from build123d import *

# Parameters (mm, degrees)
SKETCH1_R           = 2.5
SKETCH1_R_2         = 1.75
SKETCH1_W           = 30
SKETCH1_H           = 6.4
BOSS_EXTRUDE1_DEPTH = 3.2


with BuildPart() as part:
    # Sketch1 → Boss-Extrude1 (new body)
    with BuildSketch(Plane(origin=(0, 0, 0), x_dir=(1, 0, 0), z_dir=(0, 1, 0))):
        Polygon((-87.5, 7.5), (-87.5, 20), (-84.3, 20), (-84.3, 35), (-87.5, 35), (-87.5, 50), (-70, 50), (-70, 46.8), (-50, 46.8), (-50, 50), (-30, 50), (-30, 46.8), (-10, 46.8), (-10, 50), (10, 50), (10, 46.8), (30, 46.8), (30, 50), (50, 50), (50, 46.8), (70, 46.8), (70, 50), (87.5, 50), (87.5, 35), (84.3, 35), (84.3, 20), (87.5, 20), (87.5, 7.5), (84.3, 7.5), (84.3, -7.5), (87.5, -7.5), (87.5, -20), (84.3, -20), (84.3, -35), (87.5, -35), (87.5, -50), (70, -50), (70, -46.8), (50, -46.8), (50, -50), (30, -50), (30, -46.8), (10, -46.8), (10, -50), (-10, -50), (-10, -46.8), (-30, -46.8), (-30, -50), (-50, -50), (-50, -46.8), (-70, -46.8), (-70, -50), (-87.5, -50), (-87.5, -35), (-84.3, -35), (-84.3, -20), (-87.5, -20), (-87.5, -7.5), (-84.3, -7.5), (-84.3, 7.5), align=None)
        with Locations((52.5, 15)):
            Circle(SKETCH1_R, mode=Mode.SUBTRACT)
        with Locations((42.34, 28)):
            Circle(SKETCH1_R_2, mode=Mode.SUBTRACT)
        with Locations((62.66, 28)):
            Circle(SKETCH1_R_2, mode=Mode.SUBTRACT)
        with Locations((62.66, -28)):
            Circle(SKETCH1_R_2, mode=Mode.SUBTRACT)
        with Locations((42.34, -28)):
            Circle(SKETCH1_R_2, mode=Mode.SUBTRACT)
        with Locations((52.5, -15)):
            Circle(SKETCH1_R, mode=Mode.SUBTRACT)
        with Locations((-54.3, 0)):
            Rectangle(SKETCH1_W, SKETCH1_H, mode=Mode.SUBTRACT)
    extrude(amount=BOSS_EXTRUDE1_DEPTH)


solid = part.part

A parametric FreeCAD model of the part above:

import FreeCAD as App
import Part
import Sketcher
from FreeCAD import Vector
Q = App.Units.Quantity


def add_polygon(sketch, points):
    """Adds a closed chain of lines whose ends are joined by coincident constraints."""
    first, n = sketch.GeometryCount, len(points)
    for a, b in zip(points, points[1:] + points[:1]):
        sketch.addGeometry(Part.LineSegment(App.Vector(*a, 0), App.Vector(*b, 0)), False)
    for i in range(n):
        sketch.addConstraint(Sketcher.Constraint("Coincident", first + i, 2, first + (i + 1) % n, 1))

doc = App.newDocument("Part")
body = doc.addObject("PartDesign::Body", "Body")

# Sketch on XZ plane
sketch1 = doc.addObject("Sketcher::SketchObject", "Sketch")
body.addObject(sketch1)
sketch1.AttachmentSupport = (doc.XZ_Plane, [""])
sketch1.MapMode = "FlatFace"
add_polygon(sketch1, [(-87.5, -20), (-87.5, -7.5), (-84.3, -7.5), (-84.3, 7.5), (-87.5, 7.5), (-87.5, 20), (-84.3, 20), (-84.3, 35), (-87.5, 35), (-87.5, 50), (-70, 50), (-70, 46.8), (-50, 46.8), (-50, 50), (-30, 50), (-30, 46.8), (-10, 46.8), (-10, 50), (10, 50), (10, 46.8), (30, 46.8), (30, 50), (50, 50), (50, 46.8), (70, 46.8), (70, 50), (87.5, 50), (87.5, 35), (84.3, 35), (84.3, 20), (87.5, 20), (87.5, 7.5), (84.3, 7.5), (84.3, -7.5), (87.5, -7.5), (87.5, -20), (84.3, -20), (84.3, -35), (87.5, -35), (87.5, -50), (70, -50), (70, -46.8), (50, -46.8), (50, -50), (30, -50), (30, -46.8), (10, -46.8), (10, -50), (-10, -50), (-10, -46.8), (-30, -46.8), (-30, -50), (-50, -50), (-50, -46.8), (-70, -46.8), (-70, -50), (-87.5, -50), (-87.5, -35), (-84.3, -35), (-84.3, -20)])  # lines 0-59
sketch1.addGeometry(Part.Circle(Vector(62.7, 28, 0), Vector(0, 0, 1), 1.8), False)  # 60
sketch1.addGeometry(Part.Circle(Vector(42.3, 28, 0), Vector(0, 0, 1), 1.8), False)  # 61
sketch1.addGeometry(Part.Circle(Vector(52.5, 15, 0), Vector(0, 0, 1), 2.5), False)  # 62
sketch1.addGeometry(Part.Circle(Vector(52.5, -15, 0), Vector(0, 0, 1), 2.5), False)  # 63
sketch1.addGeometry(Part.Circle(Vector(62.7, -28, 0), Vector(0, 0, 1), 1.8), False)  # 64
sketch1.addGeometry(Part.Circle(Vector(42.3, -28, 0), Vector(0, 0, 1), 1.8), False)  # 65
add_polygon(sketch1, [(-69.3, 3.2), (-69.3, -3.2), (-39.3, -3.2), (-39.3, 3.2)])  # lines 66-69
sketch1.addConstraint(Sketcher.Constraint("Vertical", 0))
sketch1.addConstraint(Sketcher.Constraint("Horizontal", 1))
sketch1.addConstraint(Sketcher.Constraint("Vertical", 2))
sketch1.addConstraint(Sketcher.Constraint("Horizontal", 3))
sketch1.addConstraint(Sketcher.Constraint("Vertical", 4))
sketch1.addConstraint(Sketcher.Constraint("Horizontal", 5))
sketch1.addConstraint(Sketcher.Constraint("Vertical", 6))
sketch1.addConstraint(Sketcher.Constraint("Horizontal", 7))
sketch1.addConstraint(Sketcher.Constraint("Vertical", 8))
sketch1.addConstraint(Sketcher.Constraint("Horizontal", 9))
sketch1.addConstraint(Sketcher.Constraint("Vertical", 10))
sketch1.addConstraint(Sketcher.Constraint("Horizontal", 11))
sketch1.addConstraint(Sketcher.Constraint("Vertical", 12))
sketch1.addConstraint(Sketcher.Constraint("Horizontal", 13))
sketch1.addConstraint(Sketcher.Constraint("Vertical", 14))
sketch1.addConstraint(Sketcher.Constraint("Horizontal", 15))
sketch1.addConstraint(Sketcher.Constraint("Vertical", 16))
sketch1.addConstraint(Sketcher.Constraint("Horizontal", 17))
sketch1.addConstraint(Sketcher.Constraint("Vertical", 18))
sketch1.addConstraint(Sketcher.Constraint("Horizontal", 19))
sketch1.addConstraint(Sketcher.Constraint("Vertical", 20))
sketch1.addConstraint(Sketcher.Constraint("Horizontal", 21))
sketch1.addConstraint(Sketcher.Constraint("Vertical", 22))
sketch1.addConstraint(Sketcher.Constraint("Horizontal", 23))
sketch1.addConstraint(Sketcher.Constraint("Vertical", 24))
sketch1.addConstraint(Sketcher.Constraint("Horizontal", 25))
sketch1.addConstraint(Sketcher.Constraint("Vertical", 26))
sketch1.addConstraint(Sketcher.Constraint("Horizontal", 27))
sketch1.addConstraint(Sketcher.Constraint("Vertical", 28))
sketch1.addConstraint(Sketcher.Constraint("Horizontal", 29))
sketch1.addConstraint(Sketcher.Constraint("Vertical", 30))
sketch1.addConstraint(Sketcher.Constraint("Horizontal", 31))
sketch1.addConstraint(Sketcher.Constraint("Vertical", 32))
sketch1.addConstraint(Sketcher.Constraint("Horizontal", 33))
sketch1.addConstraint(Sketcher.Constraint("Vertical", 34))
sketch1.addConstraint(Sketcher.Constraint("Horizontal", 35))
sketch1.addConstraint(Sketcher.Constraint("Vertical", 36))
sketch1.addConstraint(Sketcher.Constraint("Horizontal", 37))
sketch1.addConstraint(Sketcher.Constraint("Vertical", 38))
sketch1.addConstraint(Sketcher.Constraint("Horizontal", 39))
sketch1.addConstraint(Sketcher.Constraint("Vertical", 40))
sketch1.addConstraint(Sketcher.Constraint("Horizontal", 41))
sketch1.addConstraint(Sketcher.Constraint("Vertical", 42))
sketch1.addConstraint(Sketcher.Constraint("Horizontal", 43))
sketch1.addConstraint(Sketcher.Constraint("Vertical", 44))
sketch1.addConstraint(Sketcher.Constraint("Horizontal", 45))
sketch1.addConstraint(Sketcher.Constraint("Vertical", 46))
sketch1.addConstraint(Sketcher.Constraint("Horizontal", 47))
sketch1.addConstraint(Sketcher.Constraint("Vertical", 48))
sketch1.addConstraint(Sketcher.Constraint("Horizontal", 49))
sketch1.addConstraint(Sketcher.Constraint("Vertical", 50))
sketch1.addConstraint(Sketcher.Constraint("Horizontal", 51))
sketch1.addConstraint(Sketcher.Constraint("Vertical", 52))
sketch1.addConstraint(Sketcher.Constraint("Horizontal", 53))
sketch1.addConstraint(Sketcher.Constraint("Vertical", 54))
sketch1.addConstraint(Sketcher.Constraint("Horizontal", 55))
sketch1.addConstraint(Sketcher.Constraint("Vertical", 56))
sketch1.addConstraint(Sketcher.Constraint("Horizontal", 57))
sketch1.addConstraint(Sketcher.Constraint("Vertical", 58))
sketch1.addConstraint(Sketcher.Constraint("Horizontal", 59))
sketch1.addConstraint(Sketcher.Constraint("Vertical", 66))
sketch1.addConstraint(Sketcher.Constraint("Horizontal", 67))
sketch1.addConstraint(Sketcher.Constraint("Vertical", 68))
sketch1.addConstraint(Sketcher.Constraint("Horizontal", 69))
sketch1.addConstraint(Sketcher.Constraint("Equal", 60, 61))
sketch1.addConstraint(Sketcher.Constraint("Equal", 62, 63))
sketch1.addConstraint(Sketcher.Constraint("Equal", 61, 64))
sketch1.addConstraint(Sketcher.Constraint("Equal", 64, 65))
sketch1.addConstraint(Sketcher.Constraint("Symmetric", 0, 2, 30, 2, -1, 1))
sketch1.addConstraint(Sketcher.Constraint("Symmetric", 2, 2, 32, 2, -1, 1))
sketch1.addConstraint(Sketcher.Constraint("Symmetric", 4, 2, 34, 2, -1, 1))
sketch1.addConstraint(Sketcher.Constraint("Symmetric", 6, 2, 36, 2, -1, 1))
sketch1.addConstraint(Sketcher.Constraint("Symmetric", 8, 2, 38, 2, -1, 1))
sketch1.addConstraint(Sketcher.Constraint("Symmetric", 10, 2, 40, 2, -1, 1))
sketch1.addConstraint(Sketcher.Constraint("Symmetric", 12, 2, 42, 2, -1, 1))
sketch1.addConstraint(Sketcher.Constraint("Symmetric", 14, 2, 44, 2, -1, 1))
sketch1.addConstraint(Sketcher.Constraint("Symmetric", 16, 2, 46, 2, -1, 1))
sketch1.addConstraint(Sketcher.Constraint("Symmetric", 18, 2, 48, 2, -1, 1))
sketch1.addConstraint(Sketcher.Constraint("Symmetric", 20, 2, 50, 2, -1, 1))
sketch1.addConstraint(Sketcher.Constraint("Symmetric", 22, 2, 52, 2, -1, 1))
sketch1.addConstraint(Sketcher.Constraint("Symmetric", 24, 2, 54, 2, -1, 1))
sketch1.addConstraint(Sketcher.Constraint("Symmetric", 26, 2, 56, 2, -1, 1))
sketch1.addConstraint(Sketcher.Constraint("Symmetric", 28, 2, 58, 2, -1, 1))
sketch1.addConstraint(Sketcher.Constraint("Symmetric", 15, 2, 18, 2, -2))
sketch1.addConstraint(Sketcher.Constraint("Symmetric", 13, 2, 20, 2, -2))
sketch1.addConstraint(Sketcher.Constraint("Symmetric", 11, 2, 22, 2, -2))
sketch1.addConstraint(Sketcher.Constraint("Symmetric", 9, 2, 24, 2, -2))
sketch1.addConstraint(Sketcher.Constraint("Symmetric", 7, 2, 26, 2, -2))
sketch1.addConstraint(Sketcher.Constraint("Symmetric", 5, 2, 28, 2, -2))
sketch1.addConstraint(Sketcher.Constraint("Symmetric", 3, 2, 30, 2, -2))
sketch1.addConstraint(Sketcher.Constraint("Symmetric", 62, 3, 63, 3, -1))
sketch1.addConstraint(Sketcher.Constraint("Symmetric", 60, 3, 64, 3, -1))
sketch1.addConstraint(Sketcher.Constraint("Symmetric", 61, 3, 65, 3, -1))
sketch1.addConstraint(Sketcher.Constraint("Horizontal", 60, 3, 61, 3))
sketch1.addConstraint(Sketcher.Constraint("Horizontal", 9, 2, 12, 2))
sketch1.addConstraint(Sketcher.Constraint("Horizontal", 11, 2, 14, 2))
sketch1.addConstraint(Sketcher.Constraint("Horizontal", 13, 2, 16, 2))
sketch1.addConstraint(Sketcher.Constraint("Vertical", 2, 2, 5, 2))
sketch1.addConstraint(Sketcher.Constraint("Vertical", 4, 2, 7, 2))
sketch1.addConstraint(Sketcher.Constraint("Equal", 11, 13))
sketch1.addConstraint(Sketcher.Constraint("Equal", 13, 15))
sketch1.addConstraint(Sketcher.Constraint("Equal", 15, 17))
sketch1.addConstraint(Sketcher.Constraint("Equal", 2, 6))
sketch1.addConstraint(Sketcher.Constraint("Equal", 6, 8))
sketch1.addConstraint(Sketcher.Constraint("Equal", 59, 10))
sketch1.addConstraint(Sketcher.Constraint("Diameter", 62, Q("5 mm")))
sketch1.addConstraint(Sketcher.Constraint("Diameter", 60, Q("3.5 mm")))
sketch1.addConstraint(Sketcher.Constraint("DistanceX", 11, 1, 11, 2, Q("20 mm")))
sketch1.addConstraint(Sketcher.Constraint("DistanceX", 67, 1, 67, 2, Q("30 mm")))
sketch1.addConstraint(Sketcher.Constraint("DistanceY", 2, 1, 2, 2, Q("15 mm")))
sketch1.addConstraint(Sketcher.Constraint("DistanceX", 1, 1, 1, 2, Q("3.2 mm")))
sketch1.addConstraint(Sketcher.Constraint("DistanceX", 9, 1, 9, 2, Q("17.5 mm")))
sketch1.addConstraint(Sketcher.Constraint("DistanceY", 0, 1, 0, 2, Q("12.5 mm")))
sketch1.addConstraint(Sketcher.Constraint("DistanceY", 66, 2, 66, 1, Q("6.4 mm")))
sketch1.addConstraint(Sketcher.Constraint("DistanceY", -1, 1, 60, 3, Q("28 mm")))
sketch1.addConstraint(Sketcher.Constraint("DistanceY", -1, 1, 62, 3, Q("15 mm")))
sketch1.addConstraint(Sketcher.Constraint("DistanceX", -1, 1, 62, 3, Q("52.5 mm")))
sketch1.addConstraint(Sketcher.Constraint("DistanceX", 66, 2, -1, 1, Q("69.3 mm")))
sketch1.addConstraint(Sketcher.Constraint("DistanceY", 66, 2, -1, 1, Q("3.2 mm")))
sketch1.addConstraint(Sketcher.Constraint("DistanceX", -1, 1, 60, 3, Q("62.66 mm")))
sketch1.addConstraint(Sketcher.Constraint("DistanceX", -1, 1, 61, 3, Q("42.34 mm")))
pad1 = doc.addObject("PartDesign::Pad", "Pad")
body.addObject(pad1)
pad1.Profile = sketch1
pad1.Length = 3.2
pad1.Reversed = True

doc.recompute()
